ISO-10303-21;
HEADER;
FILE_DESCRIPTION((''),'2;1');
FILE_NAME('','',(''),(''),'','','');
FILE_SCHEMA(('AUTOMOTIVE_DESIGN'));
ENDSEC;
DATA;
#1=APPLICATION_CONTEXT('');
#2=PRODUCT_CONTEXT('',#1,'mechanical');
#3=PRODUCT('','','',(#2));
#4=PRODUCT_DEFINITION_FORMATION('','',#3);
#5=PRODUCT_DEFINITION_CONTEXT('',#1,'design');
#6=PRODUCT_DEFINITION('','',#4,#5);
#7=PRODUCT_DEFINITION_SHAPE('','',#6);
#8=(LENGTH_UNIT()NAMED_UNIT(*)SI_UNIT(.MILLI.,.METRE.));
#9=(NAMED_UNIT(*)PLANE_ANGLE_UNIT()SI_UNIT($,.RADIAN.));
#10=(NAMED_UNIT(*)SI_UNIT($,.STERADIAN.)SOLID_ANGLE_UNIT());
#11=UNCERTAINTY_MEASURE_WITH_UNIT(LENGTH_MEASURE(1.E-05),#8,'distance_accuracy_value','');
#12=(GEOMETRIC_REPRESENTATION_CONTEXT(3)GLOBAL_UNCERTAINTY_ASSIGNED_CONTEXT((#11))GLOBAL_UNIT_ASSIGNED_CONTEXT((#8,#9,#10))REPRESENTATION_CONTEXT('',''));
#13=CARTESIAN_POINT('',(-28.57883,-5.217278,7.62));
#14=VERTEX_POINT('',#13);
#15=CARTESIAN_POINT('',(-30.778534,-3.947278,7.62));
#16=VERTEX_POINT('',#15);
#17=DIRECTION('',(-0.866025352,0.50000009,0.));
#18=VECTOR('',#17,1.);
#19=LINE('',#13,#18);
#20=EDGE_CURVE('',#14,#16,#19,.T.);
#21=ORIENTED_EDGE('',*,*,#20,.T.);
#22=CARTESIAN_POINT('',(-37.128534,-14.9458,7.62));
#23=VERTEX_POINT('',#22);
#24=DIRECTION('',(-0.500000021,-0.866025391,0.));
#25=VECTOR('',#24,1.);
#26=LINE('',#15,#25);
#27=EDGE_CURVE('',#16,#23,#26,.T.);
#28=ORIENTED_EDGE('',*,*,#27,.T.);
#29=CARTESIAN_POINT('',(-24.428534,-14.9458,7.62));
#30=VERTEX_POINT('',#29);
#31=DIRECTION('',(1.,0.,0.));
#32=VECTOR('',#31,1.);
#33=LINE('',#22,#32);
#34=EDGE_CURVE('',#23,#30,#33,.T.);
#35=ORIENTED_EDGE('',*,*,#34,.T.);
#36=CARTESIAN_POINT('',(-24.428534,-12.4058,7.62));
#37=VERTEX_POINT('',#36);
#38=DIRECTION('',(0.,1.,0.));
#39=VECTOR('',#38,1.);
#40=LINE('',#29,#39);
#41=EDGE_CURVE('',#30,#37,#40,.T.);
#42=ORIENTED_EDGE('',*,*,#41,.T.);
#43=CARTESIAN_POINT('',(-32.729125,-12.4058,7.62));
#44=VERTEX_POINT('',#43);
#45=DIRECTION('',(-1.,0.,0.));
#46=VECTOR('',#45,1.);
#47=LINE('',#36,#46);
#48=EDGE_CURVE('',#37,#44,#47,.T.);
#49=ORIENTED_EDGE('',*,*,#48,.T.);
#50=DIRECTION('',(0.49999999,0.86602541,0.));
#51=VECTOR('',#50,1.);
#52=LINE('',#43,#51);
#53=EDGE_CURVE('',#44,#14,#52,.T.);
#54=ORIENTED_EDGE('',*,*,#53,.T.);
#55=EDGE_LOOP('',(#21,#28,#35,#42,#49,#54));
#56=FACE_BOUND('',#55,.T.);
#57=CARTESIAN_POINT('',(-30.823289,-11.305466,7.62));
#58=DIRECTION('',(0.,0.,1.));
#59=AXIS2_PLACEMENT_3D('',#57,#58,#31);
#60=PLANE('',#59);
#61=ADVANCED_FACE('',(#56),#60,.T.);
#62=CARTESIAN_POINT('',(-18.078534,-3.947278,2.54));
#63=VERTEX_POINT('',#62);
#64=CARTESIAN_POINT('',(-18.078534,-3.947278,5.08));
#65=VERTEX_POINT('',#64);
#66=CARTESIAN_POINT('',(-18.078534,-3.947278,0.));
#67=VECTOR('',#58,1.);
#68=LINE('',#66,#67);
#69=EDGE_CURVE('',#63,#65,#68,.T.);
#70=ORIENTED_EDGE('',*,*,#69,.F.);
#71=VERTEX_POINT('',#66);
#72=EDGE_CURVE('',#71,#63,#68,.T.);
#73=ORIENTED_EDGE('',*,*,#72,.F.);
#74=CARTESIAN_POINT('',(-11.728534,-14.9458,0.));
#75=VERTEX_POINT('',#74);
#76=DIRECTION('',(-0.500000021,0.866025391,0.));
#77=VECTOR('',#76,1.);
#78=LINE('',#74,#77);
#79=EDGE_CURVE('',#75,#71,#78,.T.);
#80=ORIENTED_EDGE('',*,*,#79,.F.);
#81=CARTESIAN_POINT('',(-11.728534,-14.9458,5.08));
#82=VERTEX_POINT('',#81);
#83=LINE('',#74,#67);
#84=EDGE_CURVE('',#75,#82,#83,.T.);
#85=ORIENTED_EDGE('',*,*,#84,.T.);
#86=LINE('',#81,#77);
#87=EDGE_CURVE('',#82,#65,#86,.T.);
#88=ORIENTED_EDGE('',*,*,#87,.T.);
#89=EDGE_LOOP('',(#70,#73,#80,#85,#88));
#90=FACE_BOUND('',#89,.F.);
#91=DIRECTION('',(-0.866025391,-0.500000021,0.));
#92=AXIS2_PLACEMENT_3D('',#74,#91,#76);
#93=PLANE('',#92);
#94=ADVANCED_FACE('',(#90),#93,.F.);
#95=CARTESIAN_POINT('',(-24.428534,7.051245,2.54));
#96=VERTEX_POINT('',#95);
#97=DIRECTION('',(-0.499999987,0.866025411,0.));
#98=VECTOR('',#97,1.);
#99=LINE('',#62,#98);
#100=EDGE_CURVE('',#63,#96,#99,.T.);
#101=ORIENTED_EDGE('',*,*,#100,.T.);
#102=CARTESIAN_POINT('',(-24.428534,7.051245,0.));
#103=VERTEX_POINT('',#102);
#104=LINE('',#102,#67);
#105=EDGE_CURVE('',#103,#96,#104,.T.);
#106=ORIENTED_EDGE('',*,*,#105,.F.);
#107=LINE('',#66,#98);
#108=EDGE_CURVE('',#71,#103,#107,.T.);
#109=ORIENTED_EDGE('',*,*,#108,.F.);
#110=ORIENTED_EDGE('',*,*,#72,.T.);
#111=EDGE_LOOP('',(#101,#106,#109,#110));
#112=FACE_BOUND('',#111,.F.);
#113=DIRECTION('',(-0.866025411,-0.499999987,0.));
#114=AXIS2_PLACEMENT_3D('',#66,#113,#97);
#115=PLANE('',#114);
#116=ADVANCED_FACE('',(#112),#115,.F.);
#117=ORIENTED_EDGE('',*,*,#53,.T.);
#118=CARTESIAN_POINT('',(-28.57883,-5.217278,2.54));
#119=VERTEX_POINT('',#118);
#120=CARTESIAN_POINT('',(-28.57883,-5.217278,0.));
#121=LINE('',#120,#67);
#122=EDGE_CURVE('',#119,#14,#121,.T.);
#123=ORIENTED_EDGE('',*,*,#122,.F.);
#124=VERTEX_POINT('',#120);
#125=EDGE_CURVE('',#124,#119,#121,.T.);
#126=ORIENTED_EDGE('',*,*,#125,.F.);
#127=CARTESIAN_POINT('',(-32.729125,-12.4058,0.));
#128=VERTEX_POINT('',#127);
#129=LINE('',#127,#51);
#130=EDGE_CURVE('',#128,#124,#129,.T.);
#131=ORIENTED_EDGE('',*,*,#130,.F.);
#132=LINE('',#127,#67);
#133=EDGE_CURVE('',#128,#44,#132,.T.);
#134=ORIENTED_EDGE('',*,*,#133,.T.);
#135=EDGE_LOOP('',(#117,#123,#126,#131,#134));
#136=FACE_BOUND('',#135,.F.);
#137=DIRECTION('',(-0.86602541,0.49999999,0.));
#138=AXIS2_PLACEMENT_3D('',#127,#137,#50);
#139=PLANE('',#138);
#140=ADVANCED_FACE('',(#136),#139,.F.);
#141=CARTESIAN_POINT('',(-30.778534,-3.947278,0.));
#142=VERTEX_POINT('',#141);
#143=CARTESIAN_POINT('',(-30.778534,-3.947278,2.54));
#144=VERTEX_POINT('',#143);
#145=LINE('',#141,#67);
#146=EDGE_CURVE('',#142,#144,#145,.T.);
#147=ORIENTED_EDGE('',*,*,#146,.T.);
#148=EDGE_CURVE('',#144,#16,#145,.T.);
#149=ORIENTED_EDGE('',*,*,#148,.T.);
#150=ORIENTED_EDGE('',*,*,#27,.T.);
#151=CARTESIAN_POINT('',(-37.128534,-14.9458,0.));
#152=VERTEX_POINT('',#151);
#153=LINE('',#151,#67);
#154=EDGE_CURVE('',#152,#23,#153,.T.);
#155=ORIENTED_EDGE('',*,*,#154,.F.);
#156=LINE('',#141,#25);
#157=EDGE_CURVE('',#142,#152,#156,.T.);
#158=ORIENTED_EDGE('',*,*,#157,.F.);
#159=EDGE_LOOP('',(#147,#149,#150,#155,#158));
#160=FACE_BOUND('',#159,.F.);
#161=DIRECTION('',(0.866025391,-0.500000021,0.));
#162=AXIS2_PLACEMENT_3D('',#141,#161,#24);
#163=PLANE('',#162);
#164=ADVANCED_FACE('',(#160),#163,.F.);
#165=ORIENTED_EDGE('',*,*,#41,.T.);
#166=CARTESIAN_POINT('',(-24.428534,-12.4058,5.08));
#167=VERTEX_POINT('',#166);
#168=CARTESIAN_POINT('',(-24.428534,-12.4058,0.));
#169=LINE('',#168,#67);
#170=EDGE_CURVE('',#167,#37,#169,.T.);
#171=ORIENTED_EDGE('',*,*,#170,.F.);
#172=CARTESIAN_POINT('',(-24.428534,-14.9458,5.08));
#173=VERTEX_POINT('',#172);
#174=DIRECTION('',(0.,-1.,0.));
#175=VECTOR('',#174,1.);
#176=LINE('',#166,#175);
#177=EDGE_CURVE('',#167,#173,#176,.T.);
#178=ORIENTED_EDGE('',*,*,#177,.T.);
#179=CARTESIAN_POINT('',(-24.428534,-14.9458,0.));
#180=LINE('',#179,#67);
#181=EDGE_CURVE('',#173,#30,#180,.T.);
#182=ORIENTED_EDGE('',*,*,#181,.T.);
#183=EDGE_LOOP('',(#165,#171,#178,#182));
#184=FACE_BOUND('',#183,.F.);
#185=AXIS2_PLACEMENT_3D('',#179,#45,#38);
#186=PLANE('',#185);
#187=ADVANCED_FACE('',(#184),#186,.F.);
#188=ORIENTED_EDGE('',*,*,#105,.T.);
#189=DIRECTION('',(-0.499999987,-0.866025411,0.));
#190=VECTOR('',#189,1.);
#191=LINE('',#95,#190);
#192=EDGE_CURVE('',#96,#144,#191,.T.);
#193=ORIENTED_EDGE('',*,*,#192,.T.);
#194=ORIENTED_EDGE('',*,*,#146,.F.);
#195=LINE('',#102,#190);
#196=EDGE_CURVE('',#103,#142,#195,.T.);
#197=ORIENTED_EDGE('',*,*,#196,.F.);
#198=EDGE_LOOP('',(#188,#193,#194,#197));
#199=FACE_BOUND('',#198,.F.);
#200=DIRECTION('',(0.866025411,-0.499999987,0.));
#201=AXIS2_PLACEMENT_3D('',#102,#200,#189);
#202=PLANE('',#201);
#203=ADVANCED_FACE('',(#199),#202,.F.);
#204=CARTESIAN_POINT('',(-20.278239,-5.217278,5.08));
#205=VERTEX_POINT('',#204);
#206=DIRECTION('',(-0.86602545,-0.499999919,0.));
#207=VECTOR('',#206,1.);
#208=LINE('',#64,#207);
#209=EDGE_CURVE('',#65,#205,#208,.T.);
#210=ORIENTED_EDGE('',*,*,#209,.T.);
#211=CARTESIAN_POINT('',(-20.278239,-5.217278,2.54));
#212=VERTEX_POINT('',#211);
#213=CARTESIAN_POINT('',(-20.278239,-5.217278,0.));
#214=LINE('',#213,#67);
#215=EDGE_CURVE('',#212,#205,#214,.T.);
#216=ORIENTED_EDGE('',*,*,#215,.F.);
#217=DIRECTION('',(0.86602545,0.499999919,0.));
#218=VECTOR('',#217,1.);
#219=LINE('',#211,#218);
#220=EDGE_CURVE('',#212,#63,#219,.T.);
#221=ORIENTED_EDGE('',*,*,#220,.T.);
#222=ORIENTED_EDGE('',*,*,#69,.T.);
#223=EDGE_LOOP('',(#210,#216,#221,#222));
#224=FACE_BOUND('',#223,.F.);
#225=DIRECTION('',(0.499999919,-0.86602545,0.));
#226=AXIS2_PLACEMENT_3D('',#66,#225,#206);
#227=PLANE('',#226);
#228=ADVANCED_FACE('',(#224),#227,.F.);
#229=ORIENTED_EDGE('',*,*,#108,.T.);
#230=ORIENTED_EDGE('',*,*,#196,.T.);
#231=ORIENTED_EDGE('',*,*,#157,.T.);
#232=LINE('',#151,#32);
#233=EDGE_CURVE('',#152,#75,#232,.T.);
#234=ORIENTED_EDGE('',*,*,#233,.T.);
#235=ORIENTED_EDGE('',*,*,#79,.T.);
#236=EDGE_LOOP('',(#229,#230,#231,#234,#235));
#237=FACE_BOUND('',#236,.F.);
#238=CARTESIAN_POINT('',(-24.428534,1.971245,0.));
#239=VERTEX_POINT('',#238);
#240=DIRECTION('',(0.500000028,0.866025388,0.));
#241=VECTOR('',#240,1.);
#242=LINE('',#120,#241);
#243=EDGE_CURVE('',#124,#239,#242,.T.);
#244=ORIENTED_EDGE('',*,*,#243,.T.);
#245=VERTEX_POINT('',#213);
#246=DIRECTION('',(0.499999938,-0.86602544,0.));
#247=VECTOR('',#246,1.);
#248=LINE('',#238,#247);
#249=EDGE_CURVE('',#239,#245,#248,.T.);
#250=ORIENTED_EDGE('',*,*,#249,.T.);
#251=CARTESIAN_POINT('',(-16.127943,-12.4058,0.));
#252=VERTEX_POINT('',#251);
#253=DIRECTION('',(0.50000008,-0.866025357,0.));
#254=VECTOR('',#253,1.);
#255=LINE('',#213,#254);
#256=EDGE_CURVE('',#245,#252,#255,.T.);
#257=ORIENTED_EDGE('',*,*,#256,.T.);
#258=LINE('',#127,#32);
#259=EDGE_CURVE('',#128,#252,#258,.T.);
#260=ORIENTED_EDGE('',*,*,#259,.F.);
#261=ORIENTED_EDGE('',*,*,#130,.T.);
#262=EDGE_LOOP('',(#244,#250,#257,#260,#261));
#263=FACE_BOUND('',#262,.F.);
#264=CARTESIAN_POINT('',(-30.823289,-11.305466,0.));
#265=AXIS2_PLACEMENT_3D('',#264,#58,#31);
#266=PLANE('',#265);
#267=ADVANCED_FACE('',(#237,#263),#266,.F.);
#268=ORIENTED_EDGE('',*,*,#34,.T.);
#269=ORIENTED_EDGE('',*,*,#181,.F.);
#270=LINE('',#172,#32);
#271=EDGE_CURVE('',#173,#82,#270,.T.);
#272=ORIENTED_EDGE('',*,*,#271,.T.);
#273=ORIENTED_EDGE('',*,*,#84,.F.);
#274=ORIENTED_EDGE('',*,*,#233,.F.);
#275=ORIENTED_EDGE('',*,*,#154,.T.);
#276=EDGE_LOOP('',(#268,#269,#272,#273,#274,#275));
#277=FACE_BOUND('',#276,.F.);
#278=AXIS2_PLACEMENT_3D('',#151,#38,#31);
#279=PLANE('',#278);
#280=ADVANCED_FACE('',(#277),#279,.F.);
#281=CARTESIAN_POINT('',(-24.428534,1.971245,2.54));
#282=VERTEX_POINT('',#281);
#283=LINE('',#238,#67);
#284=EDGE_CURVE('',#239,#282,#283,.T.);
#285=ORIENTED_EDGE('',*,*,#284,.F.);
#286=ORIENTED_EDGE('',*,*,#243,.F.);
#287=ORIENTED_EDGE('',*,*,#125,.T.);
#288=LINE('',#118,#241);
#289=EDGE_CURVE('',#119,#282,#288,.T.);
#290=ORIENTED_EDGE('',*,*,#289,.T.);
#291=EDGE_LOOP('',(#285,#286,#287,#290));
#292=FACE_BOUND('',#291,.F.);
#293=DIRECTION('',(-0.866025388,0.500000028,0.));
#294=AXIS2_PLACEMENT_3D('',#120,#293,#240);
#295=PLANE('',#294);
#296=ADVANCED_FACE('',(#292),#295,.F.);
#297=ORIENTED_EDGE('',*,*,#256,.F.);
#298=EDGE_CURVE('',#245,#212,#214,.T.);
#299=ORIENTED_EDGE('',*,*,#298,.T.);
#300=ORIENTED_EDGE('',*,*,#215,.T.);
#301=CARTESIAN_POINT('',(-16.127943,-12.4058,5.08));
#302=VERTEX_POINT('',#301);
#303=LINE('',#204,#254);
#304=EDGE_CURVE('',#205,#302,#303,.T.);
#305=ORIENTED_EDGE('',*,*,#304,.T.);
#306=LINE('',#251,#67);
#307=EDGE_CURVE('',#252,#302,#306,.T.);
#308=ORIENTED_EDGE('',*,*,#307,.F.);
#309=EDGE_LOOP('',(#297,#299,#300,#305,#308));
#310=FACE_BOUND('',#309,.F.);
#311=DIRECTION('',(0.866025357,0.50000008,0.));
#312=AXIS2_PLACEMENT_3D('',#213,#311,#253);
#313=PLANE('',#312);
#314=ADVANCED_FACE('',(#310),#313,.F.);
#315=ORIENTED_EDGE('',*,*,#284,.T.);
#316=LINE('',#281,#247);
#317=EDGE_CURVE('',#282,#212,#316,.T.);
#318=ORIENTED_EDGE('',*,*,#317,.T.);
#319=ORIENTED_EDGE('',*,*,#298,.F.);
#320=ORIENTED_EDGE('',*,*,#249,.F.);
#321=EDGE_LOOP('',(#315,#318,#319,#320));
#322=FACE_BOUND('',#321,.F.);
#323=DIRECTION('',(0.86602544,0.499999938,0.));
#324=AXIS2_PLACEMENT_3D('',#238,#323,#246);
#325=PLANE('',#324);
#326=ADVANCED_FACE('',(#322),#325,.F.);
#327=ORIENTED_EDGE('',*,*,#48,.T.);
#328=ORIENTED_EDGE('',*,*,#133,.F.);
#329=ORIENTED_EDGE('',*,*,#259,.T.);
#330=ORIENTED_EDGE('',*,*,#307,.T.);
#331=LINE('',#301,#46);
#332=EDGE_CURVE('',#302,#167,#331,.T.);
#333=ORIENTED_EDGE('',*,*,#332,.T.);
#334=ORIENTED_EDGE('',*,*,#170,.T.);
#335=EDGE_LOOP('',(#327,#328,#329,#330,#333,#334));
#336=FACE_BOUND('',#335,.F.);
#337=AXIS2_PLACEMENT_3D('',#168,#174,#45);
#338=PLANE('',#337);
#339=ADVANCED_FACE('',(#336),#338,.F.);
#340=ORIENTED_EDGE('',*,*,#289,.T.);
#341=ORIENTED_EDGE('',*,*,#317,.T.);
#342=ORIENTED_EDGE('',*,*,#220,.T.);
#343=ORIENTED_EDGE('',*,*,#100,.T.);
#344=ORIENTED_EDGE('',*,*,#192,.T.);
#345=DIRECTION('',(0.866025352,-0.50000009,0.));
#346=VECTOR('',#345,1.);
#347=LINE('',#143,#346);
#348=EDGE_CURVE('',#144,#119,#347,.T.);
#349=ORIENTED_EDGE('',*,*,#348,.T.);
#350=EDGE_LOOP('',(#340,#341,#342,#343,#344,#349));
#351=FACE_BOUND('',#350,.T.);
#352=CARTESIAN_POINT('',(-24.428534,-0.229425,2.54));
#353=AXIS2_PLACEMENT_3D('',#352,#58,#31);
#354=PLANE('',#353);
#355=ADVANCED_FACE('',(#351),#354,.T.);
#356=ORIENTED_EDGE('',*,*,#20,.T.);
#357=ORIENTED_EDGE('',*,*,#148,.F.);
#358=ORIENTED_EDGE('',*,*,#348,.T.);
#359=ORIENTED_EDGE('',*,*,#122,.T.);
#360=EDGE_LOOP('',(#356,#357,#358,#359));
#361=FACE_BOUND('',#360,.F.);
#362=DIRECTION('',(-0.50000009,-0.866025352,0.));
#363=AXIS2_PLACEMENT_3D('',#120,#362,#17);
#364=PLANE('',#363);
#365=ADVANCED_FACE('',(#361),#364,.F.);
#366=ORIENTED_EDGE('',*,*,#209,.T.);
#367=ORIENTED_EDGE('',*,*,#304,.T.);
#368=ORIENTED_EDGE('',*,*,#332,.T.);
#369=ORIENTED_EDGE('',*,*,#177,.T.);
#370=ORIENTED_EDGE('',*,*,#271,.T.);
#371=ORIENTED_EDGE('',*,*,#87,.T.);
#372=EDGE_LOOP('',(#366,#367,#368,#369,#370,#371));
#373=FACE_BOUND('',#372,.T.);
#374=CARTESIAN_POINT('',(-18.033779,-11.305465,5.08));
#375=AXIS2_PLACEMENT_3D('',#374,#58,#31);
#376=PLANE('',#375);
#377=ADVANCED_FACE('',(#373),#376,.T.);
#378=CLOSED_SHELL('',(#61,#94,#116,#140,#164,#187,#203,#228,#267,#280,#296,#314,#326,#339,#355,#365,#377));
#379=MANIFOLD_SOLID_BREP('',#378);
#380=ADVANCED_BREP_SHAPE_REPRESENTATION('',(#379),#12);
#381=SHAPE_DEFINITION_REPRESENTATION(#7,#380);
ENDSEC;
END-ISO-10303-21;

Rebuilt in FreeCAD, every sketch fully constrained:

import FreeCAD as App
import Part
import Sketcher
from FreeCAD import Vector
Q = App.Units.Quantity

doc = App.newDocument("Part")
body = doc.addObject("PartDesign::Body", "Body")

# Sketch on XY plane
sketch1 = body.newObject("Sketcher::SketchObject", "Sketch")
sketch1.AttachmentSupport = (doc.getObject("XY_Plane"), [""])
sketch1.MapMode = "FlatFace"
sketch1.addGeometry([
    Part.LineSegment(Vector(-24.428534, 7.051245, 0), Vector(-30.778534, -3.947278, 0)),  # 0
    Part.LineSegment(Vector(-30.778534, -3.947278, 0), Vector(-28.57883, -5.217278, 0)),  # 1
    Part.LineSegment(Vector(-28.57883, -5.217278, 0), Vector(-24.428534, 1.971245, 0)),  # 2
    Part.LineSegment(Vector(-24.428534, 1.971245, 0), Vector(-20.278239, -5.217278, 0)),  # 3
    Part.LineSegment(Vector(-20.278239, -5.217278, 0), Vector(-18.078534, -3.947278, 0)),  # 4
    Part.LineSegment(Vector(-18.078534, -3.947278, 0), Vector(-24.428534, 7.051245, 0)),  # 5
], False)
sketch1.addConstraint([
    Sketcher.Constraint("Coincident", 0, 2, 1, 1),
    Sketcher.Constraint("Coincident", 1, 2, 2, 1),
    Sketcher.Constraint("Coincident", 2, 2, 3, 1),
    Sketcher.Constraint("Coincident", 3, 2, 4, 1),
    Sketcher.Constraint("Coincident", 4, 2, 5, 1),
    Sketcher.Constraint("Coincident", 5, 2, 0, 1),
    Sketcher.Constraint("Perpendicular", 0, 1),
    Sketcher.Constraint("Perpendicular", 1, 2),
    Sketcher.Constraint("Perpendicular", 3, 4),
    Sketcher.Constraint("Perpendicular", 4, 5),
    Sketcher.Constraint("Horizontal", 1, 2, 3, 2),
    Sketcher.Constraint("Horizontal", 0, 2, 4, 2),
    Sketcher.Constraint("Vertical", 2, 2, 5, 2),
    Sketcher.Constraint("Angle", 0, Q("-119.999999 deg")),
    Sketcher.Constraint("Distance", 0, Q("0.5 in")),
    Sketcher.Constraint("Distance", 1, Q("0.1 in")),
    Sketcher.Constraint("DistanceX", 1, 2, -1, 1, Q("28.57883 mm")),
    Sketcher.Constraint("DistanceY", 1, 2, -1, 1, Q("5.217278 mm")),
])
pad1 = body.newObject("PartDesign::Pad", "Pad")
pad1.Profile = sketch1
pad1.Length = Q("0.1 in")

# Sketch on XY plane
sketch2 = body.newObject("Sketcher::SketchObject", "Sketch001")
sketch2.AttachmentSupport = (doc.getObject("XY_Plane"), [""])
sketch2.MapMode = "FlatFace"
sketch2.addGeometry([
    Part.LineSegment(Vector(-24.428534, -12.4058, 0), Vector(-24.428534, -14.9458, 0)),  # 0
    Part.LineSegment(Vector(-24.428534, -14.9458, 0), Vector(-11.728534, -14.9458, 0)),  # 1
    Part.LineSegment(Vector(-11.728534, -14.9458, 0), Vector(-18.078534, -3.947278, 0)),  # 2
    Part.LineSegment(Vector(-18.078534, -3.947278, 0), Vector(-20.278239, -5.217278, 0)),  # 3
    Part.LineSegment(Vector(-20.278239, -5.217278, 0), Vector(-16.127943, -12.4058, 0)),  # 4
    Part.LineSegment(Vector(-16.127943, -12.4058, 0), Vector(-24.428534, -12.4058, 0)),  # 5
], False)
sketch2.addConstraint([
    Sketcher.Constraint("Coincident", 0, 2, 1, 1),
    Sketcher.Constraint("Coincident", 1, 2, 2, 1),
    Sketcher.Constraint("Coincident", 2, 2, 3, 1),
    Sketcher.Constraint("Coincident", 3, 2, 4, 1),
    Sketcher.Constraint("Coincident", 4, 2, 5, 1),
    Sketcher.Constraint("Coincident", 5, 2, 0, 1),
    Sketcher.Constraint("Vertical", 0),
    Sketcher.Constraint("Horizontal", 1),
    Sketcher.Constraint("Horizontal", 5),
    Sketcher.Constraint("Perpendicular", 2, 3),
    Sketcher.Constraint("Perpendicular", 3, 4),
    Sketcher.Constraint("DistanceX", 1, 1, 1, 2, Q("0.5 in")),
    Sketcher.Constraint("DistanceY", 0, 2, 0, 1, Q("0.1 in")),
    Sketcher.Constraint("Angle", 2, Q("120.000001 deg")),
    Sketcher.Constraint("Distance", 2, Q("0.5 in")),
    Sketcher.Constraint("Distance", 3, Q("0.1 in")),
    Sketcher.Constraint("DistanceY", 0, 2, -1, 1, Q("14.9458 mm")),
    Sketcher.Constraint("DistanceX", 3, 2, -1, 1, Q("20.278239 mm")),
])
pad2 = body.newObject("PartDesign::Pad", "Pad001")
pad2.Profile = sketch2
pad2.Length = Q("0.2 in")

# Sketch on XY plane
sketch3 = body.newObject("Sketcher::SketchObject", "Sketch002")
sketch3.AttachmentSupport = (doc.getObject("XY_Plane"), [""])
sketch3.MapMode = "FlatFace"
sketch3.addGeometry([
    Part.LineSegment(Vector(-30.778534, -3.947278, 0), Vector(-37.128534, -14.9458, 0)),  # 0
    Part.LineSegment(Vector(-37.128534, -14.9458, 0), Vector(-24.428534, -14.9458, 0)),  # 1
    Part.LineSegment(Vector(-24.428534, -14.9458, 0), Vector(-24.428534, -12.4058, 0)),  # 2
    Part.LineSegment(Vector(-24.428534, -12.4058, 0), Vector(-32.729125, -12.4058, 0)),  # 3
    Part.LineSegment(Vector(-32.729125, -12.4058, 0), Vector(-28.57883, -5.217278, 0)),  # 4
    Part.LineSegment(Vector(-28.57883, -5.217278, 0), Vector(-30.778534, -3.947278, 0)),  # 5
], False)
sketch3.addConstraint([
    Sketcher.Constraint("Coincident", 0, 2, 1, 1),
    Sketcher.Constraint("Coincident", 1, 2, 2, 1),
    Sketcher.Constraint("Coincident", 2, 2, 3, 1),
    Sketcher.Constraint("Coincident", 3, 2, 4, 1),
    Sketcher.Constraint("Coincident", 4, 2, 5, 1),
    Sketcher.Constraint("Coincident", 5, 2, 0, 1),
    Sketcher.Constraint("Horizontal", 1),
    Sketcher.Constraint("Vertical", 2),
    Sketcher.Constraint("Horizontal", 3),
    Sketcher.Constraint("Parallel", 0, 4),
    Sketcher.Constraint("Perpendicular", 4, 5),
    Sketcher.Constraint("DistanceX", 1, 1, 1, 2, Q("0.5 in")),
    Sketcher.Constraint("DistanceY", 2, 1, 2, 2, Q("0.1 in")),
    Sketcher.Constraint("Angle", 0, Q("-120.000001 deg")),
    Sketcher.Constraint("Distance", 0, Q("0.5 in")),
    Sketcher.Constraint("Distance", 5, Q("0.1 in")),
    Sketcher.Constraint("DistanceY", 0, 2, -1, 1, Q("14.9458 mm")),
    Sketcher.Constraint("DistanceX", 4, 2, -1, 1, Q("28.57883 mm")),
])
pad3 = body.newObject("PartDesign::Pad", "Pad002")
pad3.Profile = sketch3
pad3.Length = Q("0.3 in")

doc.recompute()
